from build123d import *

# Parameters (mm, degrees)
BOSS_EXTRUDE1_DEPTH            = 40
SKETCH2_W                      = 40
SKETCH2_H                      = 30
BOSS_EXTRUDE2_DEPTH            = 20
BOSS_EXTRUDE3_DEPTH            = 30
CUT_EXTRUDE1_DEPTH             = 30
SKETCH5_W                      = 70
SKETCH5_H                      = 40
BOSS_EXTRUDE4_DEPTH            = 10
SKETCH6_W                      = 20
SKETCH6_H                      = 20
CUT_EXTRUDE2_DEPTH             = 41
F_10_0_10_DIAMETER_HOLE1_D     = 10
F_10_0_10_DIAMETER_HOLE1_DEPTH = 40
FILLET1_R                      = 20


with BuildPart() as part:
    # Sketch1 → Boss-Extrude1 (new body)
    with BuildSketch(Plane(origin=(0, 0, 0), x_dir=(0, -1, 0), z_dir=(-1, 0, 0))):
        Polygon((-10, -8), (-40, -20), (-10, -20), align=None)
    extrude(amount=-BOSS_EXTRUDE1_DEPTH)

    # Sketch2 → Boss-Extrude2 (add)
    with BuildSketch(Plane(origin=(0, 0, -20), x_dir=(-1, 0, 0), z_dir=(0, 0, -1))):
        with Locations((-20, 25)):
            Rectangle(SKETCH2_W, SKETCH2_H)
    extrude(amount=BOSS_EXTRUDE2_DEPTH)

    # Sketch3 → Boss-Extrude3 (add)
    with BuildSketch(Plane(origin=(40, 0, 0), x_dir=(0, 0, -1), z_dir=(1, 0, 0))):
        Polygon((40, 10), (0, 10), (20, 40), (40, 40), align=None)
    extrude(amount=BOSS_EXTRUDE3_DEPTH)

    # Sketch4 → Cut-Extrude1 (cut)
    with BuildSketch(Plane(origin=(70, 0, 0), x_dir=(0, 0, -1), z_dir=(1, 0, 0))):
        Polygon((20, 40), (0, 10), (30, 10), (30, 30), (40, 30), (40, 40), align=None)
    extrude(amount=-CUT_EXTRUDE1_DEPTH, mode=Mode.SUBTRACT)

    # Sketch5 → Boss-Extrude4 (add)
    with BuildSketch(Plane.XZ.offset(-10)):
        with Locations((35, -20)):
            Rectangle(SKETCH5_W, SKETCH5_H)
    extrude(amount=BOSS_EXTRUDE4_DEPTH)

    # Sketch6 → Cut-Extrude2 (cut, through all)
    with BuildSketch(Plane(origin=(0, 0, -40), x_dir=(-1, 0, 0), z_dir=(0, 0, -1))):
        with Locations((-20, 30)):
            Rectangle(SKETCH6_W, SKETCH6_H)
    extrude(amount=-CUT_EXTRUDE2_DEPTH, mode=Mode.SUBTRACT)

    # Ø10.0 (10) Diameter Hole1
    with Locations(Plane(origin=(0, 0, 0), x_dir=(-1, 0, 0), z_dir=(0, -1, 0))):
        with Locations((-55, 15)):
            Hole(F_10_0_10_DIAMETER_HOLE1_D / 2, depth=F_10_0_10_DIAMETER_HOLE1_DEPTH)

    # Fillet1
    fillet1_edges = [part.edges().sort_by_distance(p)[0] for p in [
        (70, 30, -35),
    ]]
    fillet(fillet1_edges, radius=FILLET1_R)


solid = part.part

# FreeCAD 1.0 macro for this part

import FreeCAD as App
import Part
import Sketcher
Q = App.Units.Quantity


def edges_at(feature, points):
    """Names of the edges that pass closest to the given points."""
    edges = feature.Shape.Edges
    near = lambda p: min(range(len(edges)), key=lambda i: edges[i].distToShape(Part.Vertex(*p))[0])
    return sorted({f"Edge{near(p) + 1}" for p in points})


def add_polygon(sketch, points):
    """Adds a closed chain of lines whose ends are joined by coincident constraints."""
    first, n = sketch.GeometryCount, len(points)
    for a, b in zip(points, points[1:] + points[:1]):
        sketch.addGeometry(Part.LineSegment(App.Vector(*a, 0), App.Vector(*b, 0)), False)
    for i in range(n):
        sketch.addConstraint(Sketcher.Constraint("Coincident", first + i, 2, first + (i + 1) % n, 1))

doc = App.newDocument("Part")
params = doc.addObject("Spreadsheet::Sheet", "Params")
for row, (alias, value) in enumerate([
    ("sketch1_width", "30 mm"),
    ("sketch1_height", "12 mm"),
    ("pad1_length", "40 mm"),
    ("sketch2_width", "40 mm"),
    ("sketch2_height", "30 mm"),
    ("pad2_length", "20 mm"),
    ("sketch3_width", "30 mm"),
    ("sketch3_height", "40 mm"),
    ("sketch3_height2", "20 mm"),
    ("pad3_length", "30 mm"),
    ("sketch4_width", "20 mm"),
    ("sketch4_width2", "10 mm"),
    ("sketch4_height", "30 mm"),
    ("pocket1_length", "30 mm"),
    ("sketch5_width", "70 mm"),
    ("sketch5_height", "40 mm"),
    ("pad4_length", "10 mm"),
    ("sketch6_width", "20 mm"),
    ("sketch7_diameter", "10 mm"),
    ("hole_diameter", "10 mm"),
    ("hole_depth", "40 mm"),
    ("fillet_radius", "20 mm"),
], start=1):
    params.set(f"A{row}", alias)
    params.set(f"B{row}", "=" + value)
    params.setAlias(f"B{row}", alias)

body = doc.addObject("PartDesign::Body", "Body")

sketch1 = body.newObject("Sketcher::SketchObject", "Sketch")
sketch1.AttachmentSupport = (doc.getObject("YZ_Plane"), [""])
sketch1.MapMode = "FlatFace"
add_polygon(sketch1, [(10, -8), (40, -20), (10, -20)])
sketch1.addConstraint([
    Sketcher.Constraint("Horizontal", 1),
    Sketcher.Constraint("Vertical", 2),
    Sketcher.Constraint("DistanceX", 1, 2, 1, 1, Q("30 mm")),
    Sketcher.Constraint("DistanceY", 2, 1, 2, 2, Q("12 mm")),
    Sketcher.Constraint("DistanceX", -1, 1, 0, 2, Q("40 mm")),
    Sketcher.Constraint("DistanceY", 0, 2, -1, 1, Q("20 mm")),
])
sketch1.setExpression("Constraints[5]", "Params.sketch1_width")
sketch1.setExpression("Constraints[6]", "Params.sketch1_height")
pad1 = body.newObject("PartDesign::Pad", "Pad")
pad1.Profile = sketch1
pad1.setExpression("Length", "Params.pad1_length")

sketch2 = body.newObject("Sketcher::SketchObject", "Sketch001")
sketch2.AttachmentSupport = (doc.getObject("XY_Plane"), [""])
sketch2.MapMode = "FlatFace"
sketch2.AttachmentOffset = App.Placement(App.Vector(0, 0, -20), App.Rotation())
add_polygon(sketch2, [(40, 40), (40, 10), (0, 10), (0, 40)])
sketch2.addConstraint([
    Sketcher.Constraint("Vertical", 0),
    Sketcher.Constraint("Horizontal", 1),
    Sketcher.Constraint("Vertical", 2),
    Sketcher.Constraint("Horizontal", 3),
    Sketcher.Constraint("PointOnObject", 1, 2, -2),
    Sketcher.Constraint("DistanceX", 1, 2, 1, 1, Q("40 mm")),
    Sketcher.Constraint("DistanceY", 0, 2, 0, 1, Q("30 mm")),
    Sketcher.Constraint("DistanceY", -1, 1, 0, 2, Q("10 mm")),
])
sketch2.setExpression("Constraints[9]", "Params.sketch2_width")
sketch2.setExpression("Constraints[10]", "Params.sketch2_height")
pad2 = body.newObject("PartDesign::Pad", "Pad001")
pad2.Profile = sketch2
pad2.setExpression("Length", "Params.pad2_length")
pad2.Reversed = True

sketch3 = body.newObject("Sketcher::SketchObject", "Sketch002")
sketch3.AttachmentSupport = (doc.getObject("YZ_Plane"), [""])
sketch3.MapMode = "FlatFace"
sketch3.AttachmentOffset = App.Placement(App.Vector(0, 0, 40), App.Rotation())
add_polygon(sketch3, [(10, 0), (10, -40), (40, -40), (40, -20)])
sketch3.addConstraint([
    Sketcher.Constraint("Vertical", 0),
    Sketcher.Constraint("Horizontal", 1),
    Sketcher.Constraint("Vertical", 2),
    Sketcher.Constraint("PointOnObject", 3, 2, -1),
    Sketcher.Constraint("DistanceX", 1, 1, 1, 2, Q("30 mm")),
    Sketcher.Constraint("DistanceY", 0, 2, 0, 1, Q("40 mm")),
    Sketcher.Constraint("DistanceY", 2, 1, 2, 2, Q("20 mm")),
    Sketcher.Constraint("DistanceX", -1, 1, 0, 2, Q("10 mm")),
])
sketch3.setExpression("Constraints[8]", "Params.sketch3_width")
sketch3.setExpression("Constraints[9]", "Params.sketch3_height")
sketch3.setExpression("Constraints[10]", "Params.sketch3_height2")
pad3 = body.newObject("PartDesign::Pad", "Pad002")
pad3.Profile = sketch3
pad3.setExpression("Length", "Params.pad3_length")

sketch4 = body.newObject("Sketcher::SketchObject", "Sketch003")
sketch4.AttachmentSupport = (doc.getObject("YZ_Plane"), [""])
sketch4.MapMode = "FlatFace"
sketch4.AttachmentOffset = App.Placement(App.Vector(0, 0, 70), App.Rotation())
add_polygon(sketch4, [(40, -20), (10, 0), (10, -30), (30, -30), (30, -40), (40, -40)])
sketch4.addConstraint([
    Sketcher.Constraint("Vertical", 1),
    Sketcher.Constraint("Horizontal", 2),
    Sketcher.Constraint("Vertical", 3),
    Sketcher.Constraint("Horizontal", 4),
    Sketcher.Constraint("Vertical", 5),
    Sketcher.Constraint("PointOnObject", 0, 2, -1),
    Sketcher.Constraint("Equal", 4, 3),
    Sketcher.Constraint("Equal", 2, 5),
    Sketcher.Constraint("DistanceX", 2, 1, 2, 2, Q("20 mm")),
    Sketcher.Constraint("DistanceX", 4, 1, 4, 2, Q("10 mm")),
    Sketcher.Constraint("DistanceY", 1, 2, 1, 1, Q("30 mm")),
    Sketcher.Constraint("DistanceX", -1, 1, 0, 2, Q("10 mm")),
])
sketch4.setExpression("Constraints[14]", "Params.sketch4_width")
sketch4.setExpression("Constraints[15]", "Params.sketch4_width2")
sketch4.setExpression("Constraints[16]", "Params.sketch4_height")
pocket1 = body.newObject("PartDesign::Pocket", "Pocket")
pocket1.Profile = sketch4
pocket1.setExpression("Length", "Params.pocket1_length")

sketch5 = body.newObject("Sketcher::SketchObject", "Sketch004")
sketch5.AttachmentSupport = (doc.getObject("XZ_Plane"), [""])
sketch5.MapMode = "FlatFace"
sketch5.AttachmentOffset = App.Placement(App.Vector(0, 0, -10), App.Rotation())
add_polygon(sketch5, [(0, 0), (0, -40), (70, -40), (70, 0)])
sketch5.addConstraint([
    Sketcher.Constraint("Vertical", 0),
    Sketcher.Constraint("Horizontal", 1),
    Sketcher.Constraint("Vertical", 2),
    Sketcher.Constraint("Horizontal", 3),
    Sketcher.Constraint("Coincident", 3, 2, -1, 1),
    Sketcher.Constraint("DistanceX", 1, 1, 1, 2, Q("70 mm")),
    Sketcher.Constraint("DistanceY", 0, 2, 0, 1, Q("40 mm")),
])
sketch5.setExpression("Constraints[9]", "Params.sketch5_width")
sketch5.setExpression("Constraints[10]", "Params.sketch5_height")
pad4 = body.newObject("PartDesign::Pad", "Pad003")
pad4.Profile = sketch5
pad4.setExpression("Length", "Params.pad4_length")

sketch6 = body.newObject("Sketcher::SketchObject", "Sketch005")
sketch6.AttachmentSupport = (doc.getObject("XY_Plane"), [""])
sketch6.MapMode = "FlatFace"
sketch6.AttachmentOffset = App.Placement(App.Vector(0, 0, -40), App.Rotation())
add_polygon(sketch6, [(30, 40), (30, 20), (10, 20), (10, 40)])
sketch6.addConstraint([
    Sketcher.Constraint("Vertical", 0),
    Sketcher.Constraint("Horizontal", 1),
    Sketcher.Constraint("Vertical", 2),
    Sketcher.Constraint("Horizontal", 3),
    Sketcher.Constraint("Equal", 3, 0),
    Sketcher.Constraint("DistanceX", 1, 2, 1, 1, Q("20 mm")),
    Sketcher.Constraint("DistanceX", -1, 1, 0, 2, Q("30 mm")),
    Sketcher.Constraint("DistanceY", -1, 1, 0, 2, Q("20 mm")),
])
sketch6.setExpression("Constraints[9]", "Params.sketch6_width")
pocket2 = body.newObject("PartDesign::Pocket", "Pocket001")
pocket2.Profile = sketch6
pocket2.Type = "ThroughAll"
pocket2.Reversed = True

sketch7 = body.newObject("Sketcher::SketchObject", "Sketch006")
sketch7.AttachmentSupport = (doc.getObject("XZ_Plane"), [""])
sketch7.MapMode = "FlatFace"
sketch7.addGeometry(Part.Circle(App.Vector(55, -15, 0), App.Vector(0, 0, 1), 5), False)
sketch7.addConstraint([
    Sketcher.Constraint("Diameter", 0, Q("10 mm")),
    Sketcher.Constraint("DistanceX", -1, 1, 0, 3, Q("55 mm")),
    Sketcher.Constraint("DistanceY", 0, 3, -1, 1, Q("15 mm")),
])
sketch7.setExpression("Constraints[0]", "Params.sketch7_diameter")
doc.recompute()
hole = body.newObject("PartDesign::Hole", "Hole")
hole.Profile = sketch7
hole.ThreadType = "None"
hole.setExpression("Diameter", "Params.hole_diameter")
hole.DepthType = "Dimension"
hole.setExpression("Depth", "Params.hole_depth")
hole.DrillPoint = "Flat"
doc.recompute()

fillet = body.newObject("PartDesign::Fillet", "Fillet")
fillet.Base = (hole, edges_at(hole, [(70, 30, -35)]))
fillet.setExpression("Radius", "Params.fillet_radius")

doc.recompute()
